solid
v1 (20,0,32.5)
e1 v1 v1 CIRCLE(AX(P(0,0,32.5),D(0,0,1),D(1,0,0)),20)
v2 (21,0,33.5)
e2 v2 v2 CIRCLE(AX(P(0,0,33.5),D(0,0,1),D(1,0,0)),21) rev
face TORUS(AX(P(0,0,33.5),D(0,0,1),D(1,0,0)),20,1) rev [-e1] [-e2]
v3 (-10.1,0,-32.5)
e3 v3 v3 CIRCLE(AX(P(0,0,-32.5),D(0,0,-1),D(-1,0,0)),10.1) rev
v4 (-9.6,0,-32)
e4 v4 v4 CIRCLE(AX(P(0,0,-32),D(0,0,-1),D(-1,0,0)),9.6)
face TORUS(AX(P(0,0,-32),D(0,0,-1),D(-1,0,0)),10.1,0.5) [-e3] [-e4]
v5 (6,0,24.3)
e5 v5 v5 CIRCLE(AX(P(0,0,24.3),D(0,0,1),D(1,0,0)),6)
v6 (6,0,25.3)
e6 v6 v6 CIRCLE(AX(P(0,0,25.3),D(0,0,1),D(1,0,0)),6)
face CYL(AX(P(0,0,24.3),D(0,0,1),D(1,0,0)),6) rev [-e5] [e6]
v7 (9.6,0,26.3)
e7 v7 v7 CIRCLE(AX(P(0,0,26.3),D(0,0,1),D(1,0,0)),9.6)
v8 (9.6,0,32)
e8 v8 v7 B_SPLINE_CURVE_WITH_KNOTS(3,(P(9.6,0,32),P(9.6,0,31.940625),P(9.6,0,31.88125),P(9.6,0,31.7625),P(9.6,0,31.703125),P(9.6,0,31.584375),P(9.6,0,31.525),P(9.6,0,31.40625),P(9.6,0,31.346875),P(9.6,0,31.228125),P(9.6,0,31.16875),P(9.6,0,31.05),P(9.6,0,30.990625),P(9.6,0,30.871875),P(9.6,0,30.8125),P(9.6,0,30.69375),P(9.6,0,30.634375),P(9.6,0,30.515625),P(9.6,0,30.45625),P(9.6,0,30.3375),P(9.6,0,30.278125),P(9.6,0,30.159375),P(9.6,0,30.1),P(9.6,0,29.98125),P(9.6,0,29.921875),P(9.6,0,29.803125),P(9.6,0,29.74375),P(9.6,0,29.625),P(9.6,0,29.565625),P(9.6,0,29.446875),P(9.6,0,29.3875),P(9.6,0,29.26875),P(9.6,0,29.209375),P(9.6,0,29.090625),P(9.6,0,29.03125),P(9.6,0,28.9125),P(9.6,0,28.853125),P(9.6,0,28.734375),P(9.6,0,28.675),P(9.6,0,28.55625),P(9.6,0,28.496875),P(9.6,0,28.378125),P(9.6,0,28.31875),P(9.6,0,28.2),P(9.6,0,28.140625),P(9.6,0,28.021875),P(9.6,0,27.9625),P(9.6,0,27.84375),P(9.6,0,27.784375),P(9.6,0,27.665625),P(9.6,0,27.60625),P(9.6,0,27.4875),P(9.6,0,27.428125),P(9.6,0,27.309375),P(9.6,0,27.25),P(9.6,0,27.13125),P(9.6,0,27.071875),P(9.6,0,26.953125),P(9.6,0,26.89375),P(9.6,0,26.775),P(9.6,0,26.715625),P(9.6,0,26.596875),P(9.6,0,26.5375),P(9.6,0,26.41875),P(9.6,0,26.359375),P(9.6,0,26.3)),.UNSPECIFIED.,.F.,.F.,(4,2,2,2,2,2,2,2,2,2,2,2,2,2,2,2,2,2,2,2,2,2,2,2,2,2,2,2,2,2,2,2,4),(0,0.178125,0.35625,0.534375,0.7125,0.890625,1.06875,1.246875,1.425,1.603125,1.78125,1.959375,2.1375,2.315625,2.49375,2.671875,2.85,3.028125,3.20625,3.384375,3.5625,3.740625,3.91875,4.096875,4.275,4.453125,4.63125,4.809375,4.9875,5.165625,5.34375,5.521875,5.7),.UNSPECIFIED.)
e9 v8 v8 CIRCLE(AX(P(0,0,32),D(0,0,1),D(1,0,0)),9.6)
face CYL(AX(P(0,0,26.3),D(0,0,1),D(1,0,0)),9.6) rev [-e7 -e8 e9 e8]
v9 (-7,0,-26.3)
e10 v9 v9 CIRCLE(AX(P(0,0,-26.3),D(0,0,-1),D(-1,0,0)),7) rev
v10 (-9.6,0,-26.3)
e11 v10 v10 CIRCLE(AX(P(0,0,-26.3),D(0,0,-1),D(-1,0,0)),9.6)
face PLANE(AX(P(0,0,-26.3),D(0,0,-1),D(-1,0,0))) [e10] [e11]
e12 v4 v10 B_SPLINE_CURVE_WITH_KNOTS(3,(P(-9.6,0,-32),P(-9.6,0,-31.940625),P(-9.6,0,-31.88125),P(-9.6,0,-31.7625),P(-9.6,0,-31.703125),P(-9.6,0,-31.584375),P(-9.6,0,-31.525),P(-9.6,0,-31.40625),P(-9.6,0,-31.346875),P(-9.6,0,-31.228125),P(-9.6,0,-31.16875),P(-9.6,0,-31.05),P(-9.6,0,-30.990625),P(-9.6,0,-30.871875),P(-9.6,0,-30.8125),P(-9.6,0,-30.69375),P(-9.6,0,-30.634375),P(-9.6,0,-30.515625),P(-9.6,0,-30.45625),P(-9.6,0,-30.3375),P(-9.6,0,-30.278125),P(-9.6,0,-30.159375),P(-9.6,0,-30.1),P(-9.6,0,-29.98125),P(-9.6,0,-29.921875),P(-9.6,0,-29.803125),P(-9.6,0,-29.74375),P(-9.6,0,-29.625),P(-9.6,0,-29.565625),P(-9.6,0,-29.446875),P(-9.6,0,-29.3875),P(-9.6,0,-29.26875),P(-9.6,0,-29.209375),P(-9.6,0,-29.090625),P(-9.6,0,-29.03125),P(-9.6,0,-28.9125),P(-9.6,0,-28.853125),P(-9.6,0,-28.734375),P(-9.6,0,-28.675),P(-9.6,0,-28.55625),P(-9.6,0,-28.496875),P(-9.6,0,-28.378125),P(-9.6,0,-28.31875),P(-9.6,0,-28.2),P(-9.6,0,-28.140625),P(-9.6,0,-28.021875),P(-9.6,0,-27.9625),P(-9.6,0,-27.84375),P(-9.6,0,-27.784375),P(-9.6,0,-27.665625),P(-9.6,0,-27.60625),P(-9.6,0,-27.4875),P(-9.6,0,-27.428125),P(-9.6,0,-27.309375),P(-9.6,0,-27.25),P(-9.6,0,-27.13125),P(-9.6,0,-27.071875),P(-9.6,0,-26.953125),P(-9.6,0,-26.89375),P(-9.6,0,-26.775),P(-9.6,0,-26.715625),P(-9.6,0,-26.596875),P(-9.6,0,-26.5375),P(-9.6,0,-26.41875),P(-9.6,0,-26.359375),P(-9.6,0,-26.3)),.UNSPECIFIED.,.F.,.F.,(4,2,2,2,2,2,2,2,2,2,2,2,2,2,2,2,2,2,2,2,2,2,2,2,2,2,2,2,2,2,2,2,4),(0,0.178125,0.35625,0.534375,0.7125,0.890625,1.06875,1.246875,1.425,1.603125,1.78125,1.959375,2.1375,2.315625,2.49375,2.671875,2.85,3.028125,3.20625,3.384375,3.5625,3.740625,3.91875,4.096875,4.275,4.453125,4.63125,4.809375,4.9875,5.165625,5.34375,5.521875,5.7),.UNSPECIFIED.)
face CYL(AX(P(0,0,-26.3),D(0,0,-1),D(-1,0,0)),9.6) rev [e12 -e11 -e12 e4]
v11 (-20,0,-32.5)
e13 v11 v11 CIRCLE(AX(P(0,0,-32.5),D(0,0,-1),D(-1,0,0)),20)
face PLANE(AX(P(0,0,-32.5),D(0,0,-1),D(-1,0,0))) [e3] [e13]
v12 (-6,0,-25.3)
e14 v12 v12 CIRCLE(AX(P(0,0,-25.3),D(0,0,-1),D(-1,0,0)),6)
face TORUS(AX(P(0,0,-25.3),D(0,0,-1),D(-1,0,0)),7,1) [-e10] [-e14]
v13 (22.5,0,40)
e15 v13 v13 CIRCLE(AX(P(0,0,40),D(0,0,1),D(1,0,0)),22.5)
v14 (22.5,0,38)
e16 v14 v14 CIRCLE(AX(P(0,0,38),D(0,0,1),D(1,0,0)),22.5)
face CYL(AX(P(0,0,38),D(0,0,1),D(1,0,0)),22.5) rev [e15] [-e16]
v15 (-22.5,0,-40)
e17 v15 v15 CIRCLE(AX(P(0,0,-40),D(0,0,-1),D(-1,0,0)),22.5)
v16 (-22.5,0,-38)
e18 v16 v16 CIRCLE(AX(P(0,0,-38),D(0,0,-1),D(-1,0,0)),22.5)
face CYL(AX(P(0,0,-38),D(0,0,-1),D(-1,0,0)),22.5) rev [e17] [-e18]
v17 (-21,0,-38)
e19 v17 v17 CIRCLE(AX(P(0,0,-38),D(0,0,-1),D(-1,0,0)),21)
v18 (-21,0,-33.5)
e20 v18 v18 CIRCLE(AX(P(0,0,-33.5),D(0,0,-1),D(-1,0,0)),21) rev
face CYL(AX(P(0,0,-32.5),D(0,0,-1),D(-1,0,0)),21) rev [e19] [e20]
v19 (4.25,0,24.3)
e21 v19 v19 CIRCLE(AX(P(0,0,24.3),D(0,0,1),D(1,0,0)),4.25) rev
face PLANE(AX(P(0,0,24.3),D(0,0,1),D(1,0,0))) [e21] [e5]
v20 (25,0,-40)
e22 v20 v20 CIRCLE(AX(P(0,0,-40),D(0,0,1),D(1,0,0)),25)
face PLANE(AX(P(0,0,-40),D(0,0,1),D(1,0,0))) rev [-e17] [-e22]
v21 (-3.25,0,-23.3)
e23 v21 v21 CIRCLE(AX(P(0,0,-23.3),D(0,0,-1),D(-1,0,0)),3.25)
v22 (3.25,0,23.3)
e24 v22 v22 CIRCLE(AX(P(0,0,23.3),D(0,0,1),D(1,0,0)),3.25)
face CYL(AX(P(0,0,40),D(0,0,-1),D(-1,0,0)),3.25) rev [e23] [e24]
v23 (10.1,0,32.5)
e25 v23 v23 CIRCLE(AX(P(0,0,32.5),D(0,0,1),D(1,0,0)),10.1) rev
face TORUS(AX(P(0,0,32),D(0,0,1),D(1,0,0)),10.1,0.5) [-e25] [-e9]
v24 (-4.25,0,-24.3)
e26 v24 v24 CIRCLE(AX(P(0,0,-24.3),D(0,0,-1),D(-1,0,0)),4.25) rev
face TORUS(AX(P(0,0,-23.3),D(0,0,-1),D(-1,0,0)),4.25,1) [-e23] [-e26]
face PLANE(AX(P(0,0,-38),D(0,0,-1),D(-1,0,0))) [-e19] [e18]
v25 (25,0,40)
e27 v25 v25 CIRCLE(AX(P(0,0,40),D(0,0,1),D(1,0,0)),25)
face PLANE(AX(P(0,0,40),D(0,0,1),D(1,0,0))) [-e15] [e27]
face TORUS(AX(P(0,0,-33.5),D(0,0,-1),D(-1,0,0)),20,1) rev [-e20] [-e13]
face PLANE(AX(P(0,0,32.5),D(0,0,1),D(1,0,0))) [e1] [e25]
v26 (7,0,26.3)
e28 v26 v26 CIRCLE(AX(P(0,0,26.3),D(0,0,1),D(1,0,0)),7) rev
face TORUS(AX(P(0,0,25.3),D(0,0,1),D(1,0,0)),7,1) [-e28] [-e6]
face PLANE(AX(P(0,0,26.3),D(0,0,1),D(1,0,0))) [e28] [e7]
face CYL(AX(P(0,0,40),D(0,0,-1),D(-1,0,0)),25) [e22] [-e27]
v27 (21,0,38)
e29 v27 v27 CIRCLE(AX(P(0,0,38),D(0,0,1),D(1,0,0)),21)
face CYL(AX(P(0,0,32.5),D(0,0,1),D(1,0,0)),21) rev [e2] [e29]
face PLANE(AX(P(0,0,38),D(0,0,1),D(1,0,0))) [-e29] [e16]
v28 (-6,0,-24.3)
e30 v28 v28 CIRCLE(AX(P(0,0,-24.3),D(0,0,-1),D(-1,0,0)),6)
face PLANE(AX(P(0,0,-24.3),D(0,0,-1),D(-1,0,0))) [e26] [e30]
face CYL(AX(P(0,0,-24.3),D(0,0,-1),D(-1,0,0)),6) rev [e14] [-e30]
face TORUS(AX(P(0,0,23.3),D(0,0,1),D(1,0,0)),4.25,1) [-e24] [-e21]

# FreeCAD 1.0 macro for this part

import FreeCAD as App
import Part
import Sketcher


def edges_at(feature, points):
    """Names of the edges that pass closest to the given points."""
    edges = feature.Shape.Edges
    near = lambda p: min(range(len(edges)), key=lambda i: edges[i].distToShape(Part.Vertex(*p))[0])
    return sorted({f"Edge{near(p) + 1}" for p in points})

doc = App.newDocument("Part")
body = doc.addObject("PartDesign::Body", "Body")

# Sketch on XY plane
sketch1 = body.newObject("Sketcher::SketchObject", "Sketch")
sketch1.AttachmentSupport = (doc.getObject("XY_Plane"), [""])
sketch1.MapMode = "FlatFace"
sketch1.addGeometry([
    Part.Circle(App.Vector(0, 0, 0), App.Vector(0, 0, 1), 25),
    Part.Circle(App.Vector(0, 0, 0), App.Vector(0, 0, 1), 3.2),
], False)
sketch1.addConstraint([
    Sketcher.Constraint("Coincident", 0, 3, -1, 1),
    Sketcher.Constraint("Coincident", 1, 3, -1, 1),
    Sketcher.Constraint("Diameter", 0, 50.0),
    Sketcher.Constraint("Diameter", 1, 6.5),
])
pad1 = body.newObject("PartDesign::Pad", "Pad")
pad1.Profile = sketch1
pad1.Length = 80
pad1.Midplane = True
doc.recompute()

fillet = body.newObject("PartDesign::Fillet", "Fillet")
fillet.Base = (pad1, edges_at(pad1, [(-3.25, 0, -40), (-3.25, 0, 40)]))
fillet.Radius = 1

# Sketch on XY plane
sketch2 = body.newObject("Sketcher::SketchObject", "Sketch001")
sketch2.AttachmentSupport = (doc.getObject("XY_Plane"), [""])
sketch2.MapMode = "FlatFace"
sketch2.AttachmentOffset = App.Placement(App.Vector(0, 0, -40), App.Rotation())
sketch2.addGeometry(Part.Circle(App.Vector(0, 0, 0), App.Vector(0, 0, 1), 21), False)
sketch2.addConstraint([
    Sketcher.Constraint("Coincident", 0, 3, -1, 1),
    Sketcher.Constraint("Diameter", 0, 42.0),
])
pocket1 = body.newObject("PartDesign::Pocket", "Pocket")
pocket1.Profile = sketch2
pocket1.Length = 7.5
pocket1.Reversed = True

# Sketch on XY plane
sketch3 = body.newObject("Sketcher::SketchObject", "Sketch002")
sketch3.AttachmentSupport = (doc.getObject("XY_Plane"), [""])
sketch3.MapMode = "FlatFace"
sketch3.AttachmentOffset = App.Placement(App.Vector(0, 0, 32.5), App.Rotation())
sketch3.addGeometry(Part.Circle(App.Vector(0, 0, 0), App.Vector(0, 0, 1), 21), False)
sketch3.addConstraint([
    Sketcher.Constraint("Coincident", 0, 3, -1, 1),
    Sketcher.Constraint("Diameter", 0, 42.0),
])
pocket2 = body.newObject("PartDesign::Pocket", "Pocket001")
pocket2.Profile = sketch3
pocket2.Length = 7.5
pocket2.Reversed = True

# Sketch on XY plane
sketch4 = body.newObject("Sketcher::SketchObject", "Sketch003")
sketch4.AttachmentSupport = (doc.getObject("XY_Plane"), [""])
sketch4.MapMode = "FlatFace"
sketch4.AttachmentOffset = App.Placement(App.Vector(0, 0, 32.5), App.Rotation())
sketch4.addGeometry(Part.Circle(App.Vector(0, 0, 0), App.Vector(0, 0, 1), 10), False)
sketch4.addConstraint([
    Sketcher.Constraint("Coincident", 0, 3, -1, 1),
    Sketcher.Constraint("Diameter", 0, 19.2),
])
pocket3 = body.newObject("PartDesign::Pocket", "Pocket002")
pocket3.Profile = sketch4
pocket3.Length = 6.2

# Sketch on XY plane
sketch5 = body.newObject("Sketcher::SketchObject", "Sketch004")
sketch5.AttachmentSupport = (doc.getObject("XY_Plane"), [""])
sketch5.MapMode = "FlatFace"
sketch5.AttachmentOffset = App.Placement(App.Vector(0, 0, -26.3), App.Rotation())
sketch5.addGeometry(Part.Circle(App.Vector(0, 0, 0), App.Vector(0, 0, 1), 10), False)
sketch5.addConstraint([
    Sketcher.Constraint("Coincident", 0, 3, -1, 1),
    Sketcher.Constraint("Diameter", 0, 19.2),
])
pocket4 = body.newObject("PartDesign::Pocket", "Pocket003")
pocket4.Profile = sketch5
pocket4.Length = 6.2
doc.recompute()

fillet2 = body.newObject("PartDesign::Fillet", "Fillet001")
fillet2.Base = (pocket4, edges_at(pocket4, [(-9.6, 0, 32.5), (-9.6, 0, -32.5)]))
fillet2.Radius = 0.5
doc.recompute()

fillet3 = body.newObject("PartDesign::Fillet", "Fillet002")
fillet3.Base = (fillet2, edges_at(fillet2, [
    (21, 0, -32.5),
    (21, 0, 32.5),
    (-3.25, 0, 26.3),
    (-3.25, 0, -26.3),
]))
fillet3.Radius = 1

# Sketch on XY plane
sketch6 = body.newObject("Sketcher::SketchObject", "Sketch005")
sketch6.AttachmentSupport = (doc.getObject("XY_Plane"), [""])
sketch6.MapMode = "FlatFace"
sketch6.AttachmentOffset = App.Placement(App.Vector(0, 0, 38), App.Rotation())
sketch6.addGeometry([
    Part.Circle(App.Vector(0, 0, 0), App.Vector(0, 0, 1), 22),
    Part.Circle(App.Vector(0, 0, 0), App.Vector(0, 0, 1), 21),
], False)
sketch6.addConstraint([
    Sketcher.Constraint("Coincident", 0, 3, -1, 1),
    Sketcher.Constraint("Coincident", 1, 3, -1, 1),
    Sketcher.Constraint("Diameter", 0, 45.0),
    Sketcher.Constraint("Diameter", 1, 42.0),
])
pocket5 = body.newObject("PartDesign::Pocket", "Pocket004")
pocket5.Profile = sketch6
pocket5.Length = 2
pocket5.Reversed = True

# Sketch on XY plane
sketch7 = body.newObject("Sketcher::SketchObject", "Sketch006")
sketch7.AttachmentSupport = (doc.getObject("XY_Plane"), [""])
sketch7.MapMode = "FlatFace"
sketch7.AttachmentOffset = App.Placement(App.Vector(0, 0, -40), App.Rotation())
sketch7.addGeometry([
    Part.Circle(App.Vector(0, 0, 0), App.Vector(0, 0, 1), 22),
    Part.Circle(App.Vector(0, 0, 0), App.Vector(0, 0, 1), 21),
], False)
sketch7.addConstraint([
    Sketcher.Constraint("Coincident", 0, 3, -1, 1),
    Sketcher.Constraint("Coincident", 1, 3, -1, 1),
    Sketcher.Constraint("Diameter", 0, 45.0),
    Sketcher.Constraint("Diameter", 1, 42.0),
])
pocket6 = body.newObject("PartDesign::Pocket", "Pocket005")
pocket6.Profile = sketch7
pocket6.Length = 2
pocket6.Reversed = True

# Sketch on XY plane
sketch8 = body.newObject("Sketcher::SketchObject", "Sketch007")
sketch8.AttachmentSupport = (doc.getObject("XY_Plane"), [""])
sketch8.MapMode = "FlatFace"
sketch8.AttachmentOffset = App.Placement(App.Vector(0, 0, 26.3), App.Rotation())
sketch8.addGeometry(Part.Circle(App.Vector(0, 0, 0), App.Vector(0, 0, 1), 6), False)
sketch8.addConstraint([
    Sketcher.Constraint("Coincident", 0, 3, -1, 1),
    Sketcher.Constraint("Diameter", 0, 12.0),
])
pocket7 = body.newObject("PartDesign::Pocket", "Pocket006")
pocket7.Profile = sketch8
pocket7.Length = 2

# Sketch on XY plane
sketch9 = body.newObject("Sketcher::SketchObject", "Sketch008")
sketch9.AttachmentSupport = (doc.getObject("XY_Plane"), [""])
sketch9.MapMode = "FlatFace"
sketch9.AttachmentOffset = App.Placement(App.Vector(0, 0, -24.3), App.Rotation())
sketch9.addGeometry(Part.Circle(App.Vector(0, 0, 0), App.Vector(0, 0, 1), 6), False)
sketch9.addConstraint([
    Sketcher.Constraint("Coincident", 0, 3, -1, 1),
    Sketcher.Constraint("Diameter", 0, 12.0),
])
pocket8 = body.newObject("PartDesign::Pocket", "Pocket007")
pocket8.Profile = sketch9
pocket8.Length = 2
doc.recompute()

fillet4 = body.newObject("PartDesign::Fillet", "Fillet003")
fillet4.Base = (pocket8, edges_at(pocket8, [
    (-6, 0, 26.3),
    (-3.25, 0, 24.3),
    (-6, 0, -26.3),
    (-3.25, 0, -24.3),
]))
fillet4.Radius = 1

doc.recompute()
